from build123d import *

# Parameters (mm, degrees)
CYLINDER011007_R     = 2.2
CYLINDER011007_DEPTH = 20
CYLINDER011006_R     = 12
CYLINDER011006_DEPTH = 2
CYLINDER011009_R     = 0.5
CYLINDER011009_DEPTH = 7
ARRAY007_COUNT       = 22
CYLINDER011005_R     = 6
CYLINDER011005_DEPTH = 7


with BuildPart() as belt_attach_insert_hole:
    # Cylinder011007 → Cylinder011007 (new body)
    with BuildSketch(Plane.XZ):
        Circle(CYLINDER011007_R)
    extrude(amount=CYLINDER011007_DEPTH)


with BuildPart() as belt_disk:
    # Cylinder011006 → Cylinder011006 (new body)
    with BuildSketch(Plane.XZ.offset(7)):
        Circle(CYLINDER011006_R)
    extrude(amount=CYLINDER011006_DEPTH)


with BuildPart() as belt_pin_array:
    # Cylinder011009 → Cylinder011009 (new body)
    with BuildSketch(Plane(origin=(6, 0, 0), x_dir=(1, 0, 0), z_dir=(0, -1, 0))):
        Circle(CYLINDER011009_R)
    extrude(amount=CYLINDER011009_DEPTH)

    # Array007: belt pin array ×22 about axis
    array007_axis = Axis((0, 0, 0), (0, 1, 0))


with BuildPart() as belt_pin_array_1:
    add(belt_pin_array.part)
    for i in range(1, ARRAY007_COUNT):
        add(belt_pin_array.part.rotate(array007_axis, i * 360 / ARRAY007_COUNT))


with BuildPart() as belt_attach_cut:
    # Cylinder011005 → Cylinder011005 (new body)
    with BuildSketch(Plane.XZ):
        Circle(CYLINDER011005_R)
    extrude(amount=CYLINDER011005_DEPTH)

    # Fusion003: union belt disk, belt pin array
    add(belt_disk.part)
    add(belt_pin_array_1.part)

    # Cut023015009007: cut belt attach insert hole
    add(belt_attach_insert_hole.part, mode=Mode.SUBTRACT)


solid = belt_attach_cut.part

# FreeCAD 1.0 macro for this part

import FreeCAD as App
import Part
import Sketcher
Q = App.Units.Quantity

doc = App.newDocument("Part")
body = doc.addObject("PartDesign::Body", "Body")

# Sketch on XZ plane
sketch1 = body.newObject("Sketcher::SketchObject", "Sketch")
sketch1.AttachmentSupport = (doc.getObject("XZ_Plane"), [""])
sketch1.MapMode = "FlatFace"
sketch1.addGeometry(Part.Circle(App.Vector(0, 0, 0), App.Vector(0, 0, 1), 2.2), False)
sketch1.addConstraint(Sketcher.Constraint("Coincident", 0, 3, -1, 1))
sketch1.addConstraint(Sketcher.Constraint("Diameter", 0, Q("4.4 mm")))
pad1 = body.newObject("PartDesign::Pad", "Pad")
pad1.Profile = sketch1
pad1.Length = 20
body2 = doc.addObject("PartDesign::Body", "Body001")

# Sketch on XZ plane
sketch2 = body2.newObject("Sketcher::SketchObject", "Sketch001")
sketch2.AttachmentSupport = (doc.getObject("XZ_Plane001"), [""])
sketch2.MapMode = "FlatFace"
sketch2.AttachmentOffset = App.Placement(App.Vector(0, 0, 7), App.Rotation())
sketch2.addGeometry(Part.Circle(App.Vector(0, 0, 0), App.Vector(0, 0, 1), 12), False)
sketch2.addConstraint(Sketcher.Constraint("Coincident", 0, 3, -1, 1))
sketch2.addConstraint(Sketcher.Constraint("Diameter", 0, Q("24 mm")))
pad2 = body2.newObject("PartDesign::Pad", "Pad001")
pad2.Profile = sketch2
pad2.Length = 2
body3 = doc.addObject("PartDesign::Body", "Body002")

# Sketch on XZ plane
sketch3 = body3.newObject("Sketcher::SketchObject", "Sketch002")
sketch3.AttachmentSupport = (doc.getObject("XZ_Plane002"), [""])
sketch3.MapMode = "FlatFace"
sketch3.addGeometry(Part.Circle(App.Vector(6, 0, 0), App.Vector(0, 0, 1), 0.5), False)
sketch3.addConstraint(Sketcher.Constraint("PointOnObject", 0, 3, -1))
sketch3.addConstraint(Sketcher.Constraint("Diameter", 0, Q("1 mm")))
sketch3.addConstraint(Sketcher.Constraint("DistanceX", -1, 1, 0, 3, Q("6 mm")))
pad3 = body3.newObject("PartDesign::Pad", "Pad002")
pad3.Profile = sketch3
pad3.Length = 7
body4 = doc.addObject("PartDesign::Body", "Body003")
body4.AllowCompound = True
doc.recompute()

body4.BaseFeature = body3
doc.recompute()

body5 = doc.addObject("PartDesign::Body", "Body004")
body5.BaseFeature = body3
body5.Placement = App.Placement(App.Vector(0, 0, 0), App.Rotation(App.Vector(0, 1, 0), 16.363636))
boolean = body4.newObject("PartDesign::Boolean", "Boolean")
boolean.Type = "Fuse"
boolean.addObjects([body5])
doc.recompute()

body6 = doc.addObject("PartDesign::Body", "Body005")
body6.BaseFeature = body3
body6.Placement = App.Placement(App.Vector(0, 0, 0), App.Rotation(App.Vector(0, 1, 0), 32.727273))
boolean2 = body4.newObject("PartDesign::Boolean", "Boolean001")
boolean2.Type = "Fuse"
boolean2.addObjects([body6])
doc.recompute()

body7 = doc.addObject("PartDesign::Body", "Body006")
body7.BaseFeature = body3
body7.Placement = App.Placement(App.Vector(0, 0, 0), App.Rotation(App.Vector(0, 1, 0), 49.090909))
boolean3 = body4.newObject("PartDesign::Boolean", "Boolean002")
boolean3.Type = "Fuse"
boolean3.addObjects([body7])
doc.recompute()

body8 = doc.addObject("PartDesign::Body", "Body007")
body8.BaseFeature = body3
body8.Placement = App.Placement(App.Vector(0, 0, 0), App.Rotation(App.Vector(0, 1, 0), 65.454545))
boolean4 = body4.newObject("PartDesign::Boolean", "Boolean003")
boolean4.Type = "Fuse"
boolean4.addObjects([body8])
doc.recompute()

body9 = doc.addObject("PartDesign::Body", "Body008")
body9.BaseFeature = body3
body9.Placement = App.Placement(App.Vector(0, 0, 0), App.Rotation(App.Vector(0, 1, 0), 81.818182))
boolean5 = body4.newObject("PartDesign::Boolean", "Boolean004")
boolean5.Type = "Fuse"
boolean5.addObjects([body9])
doc.recompute()

body10 = doc.addObject("PartDesign::Body", "Body009")
body10.BaseFeature = body3
body10.Placement = App.Placement(App.Vector(0, 0, 0), App.Rotation(App.Vector(0, 1, 0), 98.181818))
boolean6 = body4.newObject("PartDesign::Boolean", "Boolean005")
boolean6.Type = "Fuse"
boolean6.addObjects([body10])
doc.recompute()

body11 = doc.addObject("PartDesign::Body", "Body010")
body11.BaseFeature = body3
body11.Placement = App.Placement(App.Vector(0, 0, 0), App.Rotation(App.Vector(0, 1, 0), 114.545455))
boolean7 = body4.newObject("PartDesign::Boolean", "Boolean006")
boolean7.Type = "Fuse"
boolean7.addObjects([body11])
doc.recompute()

body12 = doc.addObject("PartDesign::Body", "Body011")
body12.BaseFeature = body3
body12.Placement = App.Placement(App.Vector(0, 0, 0), App.Rotation(App.Vector(0, 1, 0), 130.909091))
boolean8 = body4.newObject("PartDesign::Boolean", "Boolean007")
boolean8.Type = "Fuse"
boolean8.addObjects([body12])
doc.recompute()

body13 = doc.addObject("PartDesign::Body", "Body012")
body13.BaseFeature = body3
body13.Placement = App.Placement(App.Vector(0, 0, 0), App.Rotation(App.Vector(0, 1, 0), 147.272727))
boolean9 = body4.newObject("PartDesign::Boolean", "Boolean008")
boolean9.Type = "Fuse"
boolean9.addObjects([body13])
doc.recompute()

body14 = doc.addObject("PartDesign::Body", "Body013")
body14.BaseFeature = body3
body14.Placement = App.Placement(App.Vector(0, 0, 0), App.Rotation(App.Vector(0, 1, 0), 163.636364))
boolean10 = body4.newObject("PartDesign::Boolean", "Boolean009")
boolean10.Type = "Fuse"
boolean10.addObjects([body14])
doc.recompute()

body15 = doc.addObject("PartDesign::Body", "Body014")
body15.BaseFeature = body3
body15.Placement = App.Placement(App.Vector(0, 0, 0), App.Rotation(App.Vector(0, 1, 0), 180))
boolean11 = body4.newObject("PartDesign::Boolean", "Boolean010")
boolean11.Type = "Fuse"
boolean11.addObjects([body15])
doc.recompute()

body16 = doc.addObject("PartDesign::Body", "Body015")
body16.BaseFeature = body3
body16.Placement = App.Placement(App.Vector(0, 0, 0), App.Rotation(App.Vector(0, 1, 0), 196.363636))
boolean12 = body4.newObject("PartDesign::Boolean", "Boolean011")
boolean12.Type = "Fuse"
boolean12.addObjects([body16])
doc.recompute()

body17 = doc.addObject("PartDesign::Body", "Body016")
body17.BaseFeature = body3
body17.Placement = App.Placement(App.Vector(0, 0, 0), App.Rotation(App.Vector(0, 1, 0), 212.727273))
boolean13 = body4.newObject("PartDesign::Boolean", "Boolean012")
boolean13.Type = "Fuse"
boolean13.addObjects([body17])
doc.recompute()

body18 = doc.addObject("PartDesign::Body", "Body017")
body18.BaseFeature = body3
body18.Placement = App.Placement(App.Vector(0, 0, 0), App.Rotation(App.Vector(0, 1, 0), 229.090909))
boolean14 = body4.newObject("PartDesign::Boolean", "Boolean013")
boolean14.Type = "Fuse"
boolean14.addObjects([body18])
doc.recompute()

body19 = doc.addObject("PartDesign::Body", "Body018")
body19.BaseFeature = body3
body19.Placement = App.Placement(App.Vector(0, 0, 0), App.Rotation(App.Vector(0, 1, 0), 245.454545))
boolean15 = body4.newObject("PartDesign::Boolean", "Boolean014")
boolean15.Type = "Fuse"
boolean15.addObjects([body19])
doc.recompute()

body20 = doc.addObject("PartDesign::Body", "Body019")
body20.BaseFeature = body3
body20.Placement = App.Placement(App.Vector(0, 0, 0), App.Rotation(App.Vector(0, 1, 0), 261.818182))
boolean16 = body4.newObject("PartDesign::Boolean", "Boolean015")
boolean16.Type = "Fuse"
boolean16.addObjects([body20])
doc.recompute()

body21 = doc.addObject("PartDesign::Body", "Body020")
body21.BaseFeature = body3
body21.Placement = App.Placement(App.Vector(0, 0, 0), App.Rotation(App.Vector(0, 1, 0), 278.181818))
boolean17 = body4.newObject("PartDesign::Boolean", "Boolean016")
boolean17.Type = "Fuse"
boolean17.addObjects([body21])
doc.recompute()

body22 = doc.addObject("PartDesign::Body", "Body021")
body22.BaseFeature = body3
body22.Placement = App.Placement(App.Vector(0, 0, 0), App.Rotation(App.Vector(0, 1, 0), 294.545455))
boolean18 = body4.newObject("PartDesign::Boolean", "Boolean017")
boolean18.Type = "Fuse"
boolean18.addObjects([body22])
doc.recompute()

body23 = doc.addObject("PartDesign::Body", "Body022")
body23.BaseFeature = body3
body23.Placement = App.Placement(App.Vector(0, 0, 0), App.Rotation(App.Vector(0, 1, 0), 310.909091))
boolean19 = body4.newObject("PartDesign::Boolean", "Boolean018")
boolean19.Type = "Fuse"
boolean19.addObjects([body23])
doc.recompute()

body24 = doc.addObject("PartDesign::Body", "Body023")
body24.BaseFeature = body3
body24.Placement = App.Placement(App.Vector(0, 0, 0), App.Rotation(App.Vector(0, 1, 0), 327.272727))
boolean20 = body4.newObject("PartDesign::Boolean", "Boolean019")
boolean20.Type = "Fuse"
boolean20.addObjects([body24])
doc.recompute()

body3.Placement = App.Placement(App.Vector(0, 0, 0), App.Rotation(App.Vector(0, 1, 0), 343.636364))
boolean21 = body4.newObject("PartDesign::Boolean", "Boolean020")
boolean21.Type = "Fuse"
boolean21.addObjects([body3])
body25 = doc.addObject("PartDesign::Body", "Body024")

# Sketch on XZ plane
sketch4 = body25.newObject("Sketcher::SketchObject", "Sketch003")
sketch4.AttachmentSupport = (doc.getObject("XZ_Plane024"), [""])
sketch4.MapMode = "FlatFace"
sketch4.addGeometry(Part.Circle(App.Vector(0, 0, 0), App.Vector(0, 0, 1), 6), False)
sketch4.addConstraint(Sketcher.Constraint("Coincident", 0, 3, -1, 1))
sketch4.addConstraint(Sketcher.Constraint("Diameter", 0, Q("12 mm")))
pad4 = body25.newObject("PartDesign::Pad", "Pad003")
pad4.Profile = sketch4
pad4.Length = 7
doc.recompute()

boolean22 = body25.newObject("PartDesign::Boolean", "Boolean021")
boolean22.Type = "Fuse"
boolean22.addObjects([body2])
doc.recompute()

boolean23 = body25.newObject("PartDesign::Boolean", "Boolean022")
boolean23.Type = "Fuse"
boolean23.addObjects([body4])
doc.recompute()

boolean24 = body25.newObject("PartDesign::Boolean", "Boolean023")
boolean24.Type = "Cut"
boolean24.addObjects([body])

doc.recompute()
